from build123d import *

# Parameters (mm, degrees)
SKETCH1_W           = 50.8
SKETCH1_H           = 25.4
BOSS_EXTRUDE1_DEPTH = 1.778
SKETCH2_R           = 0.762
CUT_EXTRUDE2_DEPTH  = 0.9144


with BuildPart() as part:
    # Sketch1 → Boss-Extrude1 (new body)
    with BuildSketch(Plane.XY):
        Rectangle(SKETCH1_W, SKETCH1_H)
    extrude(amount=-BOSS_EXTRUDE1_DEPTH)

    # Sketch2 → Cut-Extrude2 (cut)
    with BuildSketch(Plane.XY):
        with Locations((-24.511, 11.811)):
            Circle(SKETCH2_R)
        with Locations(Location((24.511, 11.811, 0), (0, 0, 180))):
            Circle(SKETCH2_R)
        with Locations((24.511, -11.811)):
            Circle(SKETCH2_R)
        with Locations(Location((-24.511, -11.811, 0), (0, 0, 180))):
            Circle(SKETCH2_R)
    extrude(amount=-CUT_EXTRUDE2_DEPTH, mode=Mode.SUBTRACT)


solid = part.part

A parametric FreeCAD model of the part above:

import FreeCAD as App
import Part
import Sketcher

V = App.Vector
Q = App.Units.Quantity


def add_polygon(sketch, points):
    """Adds a closed chain of lines whose ends are joined by coincident constraints."""
    first, n = sketch.GeometryCount, len(points)
    for a, b in zip(points, points[1:] + points[:1]):
        sketch.addGeometry(Part.LineSegment(App.Vector(*a, 0), App.Vector(*b, 0)), False)
    for i in range(n):
        sketch.addConstraint(Sketcher.Constraint("Coincident", first + i, 2, first + (i + 1) % n, 1))

doc = App.newDocument("Part")
body = doc.addObject("PartDesign::Body", "Body")

# Sketch on XY plane
sketch1 = doc.addObject("Sketcher::SketchObject", "Sketch")
body.addObject(sketch1)
sketch1.AttachmentSupport = (doc.XY_Plane, [""])
sketch1.MapMode = "FlatFace"
add_polygon(sketch1, [(-25.4, 12.7), (-25.4, -12.7), (25.4, -12.7), (25.4, 12.7)])  # lines 0-3
sketch1.addConstraint(Sketcher.Constraint("Vertical", 0))
sketch1.addConstraint(Sketcher.Constraint("Horizontal", 1))
sketch1.addConstraint(Sketcher.Constraint("Vertical", 2))
sketch1.addConstraint(Sketcher.Constraint("Horizontal", 3))
sketch1.addConstraint(Sketcher.Constraint("Symmetric", 0, 2, 2, 2, -1, 1))
sketch1.addConstraint(Sketcher.Constraint("DistanceX", 1, 1, 1, 2, Q("2 in")))
sketch1.addConstraint(Sketcher.Constraint("DistanceY", 0, 2, 0, 1, Q("1 in")))
pad1 = doc.addObject("PartDesign::Pad", "Pad")
body.addObject(pad1)
pad1.Profile = sketch1
pad1.Length = Q("0.07 in")
pad1.Reversed = True

# Sketch on XY plane
sketch2 = doc.addObject("Sketcher::SketchObject", "Sketch001")
body.addObject(sketch2)
sketch2.AttachmentSupport = (doc.XY_Plane, [""])
sketch2.MapMode = "FlatFace"
sketch2.addGeometry(Part.Circle(V(-24.511, 11.811, 0), V(0, 0, 1), 0.762), False)
sketch2.addGeometry(Part.Circle(V(24.511, 11.811, 0), V(0, 0, 1), 0.762), False)
sketch2.addGeometry(Part.Circle(V(24.511, -11.811, 0), V(0, 0, 1), 0.762), False)
sketch2.addGeometry(Part.Circle(V(-24.511, -11.811, 0), V(0, 0, 1), 0.762), False)
sketch2.addConstraint(Sketcher.Constraint("Equal", 0, 1))
sketch2.addConstraint(Sketcher.Constraint("Equal", 1, 2))
sketch2.addConstraint(Sketcher.Constraint("Equal", 2, 3))
sketch2.addConstraint(Sketcher.Constraint("Symmetric", 0, 3, 2, 3, -1, 1))
sketch2.addConstraint(Sketcher.Constraint("Symmetric", 1, 3, 3, 3, -1, 1))
sketch2.addConstraint(Sketcher.Constraint("Symmetric", 0, 3, 1, 3, -2))
sketch2.addConstraint(Sketcher.Constraint("Diameter", 0, Q("0.06 in")))
sketch2.addConstraint(Sketcher.Constraint("DistanceX", 0, 3, 1, 3, Q("1.93 in")))
sketch2.addConstraint(Sketcher.Constraint("DistanceY", 2, 3, 1, 3, Q("0.93 in")))
pocket1 = doc.addObject("PartDesign::Pocket", "Pocket")
body.addObject(pocket1)
pocket1.Profile = sketch2
pocket1.Length = Q("0.036 in")

doc.recompute()
